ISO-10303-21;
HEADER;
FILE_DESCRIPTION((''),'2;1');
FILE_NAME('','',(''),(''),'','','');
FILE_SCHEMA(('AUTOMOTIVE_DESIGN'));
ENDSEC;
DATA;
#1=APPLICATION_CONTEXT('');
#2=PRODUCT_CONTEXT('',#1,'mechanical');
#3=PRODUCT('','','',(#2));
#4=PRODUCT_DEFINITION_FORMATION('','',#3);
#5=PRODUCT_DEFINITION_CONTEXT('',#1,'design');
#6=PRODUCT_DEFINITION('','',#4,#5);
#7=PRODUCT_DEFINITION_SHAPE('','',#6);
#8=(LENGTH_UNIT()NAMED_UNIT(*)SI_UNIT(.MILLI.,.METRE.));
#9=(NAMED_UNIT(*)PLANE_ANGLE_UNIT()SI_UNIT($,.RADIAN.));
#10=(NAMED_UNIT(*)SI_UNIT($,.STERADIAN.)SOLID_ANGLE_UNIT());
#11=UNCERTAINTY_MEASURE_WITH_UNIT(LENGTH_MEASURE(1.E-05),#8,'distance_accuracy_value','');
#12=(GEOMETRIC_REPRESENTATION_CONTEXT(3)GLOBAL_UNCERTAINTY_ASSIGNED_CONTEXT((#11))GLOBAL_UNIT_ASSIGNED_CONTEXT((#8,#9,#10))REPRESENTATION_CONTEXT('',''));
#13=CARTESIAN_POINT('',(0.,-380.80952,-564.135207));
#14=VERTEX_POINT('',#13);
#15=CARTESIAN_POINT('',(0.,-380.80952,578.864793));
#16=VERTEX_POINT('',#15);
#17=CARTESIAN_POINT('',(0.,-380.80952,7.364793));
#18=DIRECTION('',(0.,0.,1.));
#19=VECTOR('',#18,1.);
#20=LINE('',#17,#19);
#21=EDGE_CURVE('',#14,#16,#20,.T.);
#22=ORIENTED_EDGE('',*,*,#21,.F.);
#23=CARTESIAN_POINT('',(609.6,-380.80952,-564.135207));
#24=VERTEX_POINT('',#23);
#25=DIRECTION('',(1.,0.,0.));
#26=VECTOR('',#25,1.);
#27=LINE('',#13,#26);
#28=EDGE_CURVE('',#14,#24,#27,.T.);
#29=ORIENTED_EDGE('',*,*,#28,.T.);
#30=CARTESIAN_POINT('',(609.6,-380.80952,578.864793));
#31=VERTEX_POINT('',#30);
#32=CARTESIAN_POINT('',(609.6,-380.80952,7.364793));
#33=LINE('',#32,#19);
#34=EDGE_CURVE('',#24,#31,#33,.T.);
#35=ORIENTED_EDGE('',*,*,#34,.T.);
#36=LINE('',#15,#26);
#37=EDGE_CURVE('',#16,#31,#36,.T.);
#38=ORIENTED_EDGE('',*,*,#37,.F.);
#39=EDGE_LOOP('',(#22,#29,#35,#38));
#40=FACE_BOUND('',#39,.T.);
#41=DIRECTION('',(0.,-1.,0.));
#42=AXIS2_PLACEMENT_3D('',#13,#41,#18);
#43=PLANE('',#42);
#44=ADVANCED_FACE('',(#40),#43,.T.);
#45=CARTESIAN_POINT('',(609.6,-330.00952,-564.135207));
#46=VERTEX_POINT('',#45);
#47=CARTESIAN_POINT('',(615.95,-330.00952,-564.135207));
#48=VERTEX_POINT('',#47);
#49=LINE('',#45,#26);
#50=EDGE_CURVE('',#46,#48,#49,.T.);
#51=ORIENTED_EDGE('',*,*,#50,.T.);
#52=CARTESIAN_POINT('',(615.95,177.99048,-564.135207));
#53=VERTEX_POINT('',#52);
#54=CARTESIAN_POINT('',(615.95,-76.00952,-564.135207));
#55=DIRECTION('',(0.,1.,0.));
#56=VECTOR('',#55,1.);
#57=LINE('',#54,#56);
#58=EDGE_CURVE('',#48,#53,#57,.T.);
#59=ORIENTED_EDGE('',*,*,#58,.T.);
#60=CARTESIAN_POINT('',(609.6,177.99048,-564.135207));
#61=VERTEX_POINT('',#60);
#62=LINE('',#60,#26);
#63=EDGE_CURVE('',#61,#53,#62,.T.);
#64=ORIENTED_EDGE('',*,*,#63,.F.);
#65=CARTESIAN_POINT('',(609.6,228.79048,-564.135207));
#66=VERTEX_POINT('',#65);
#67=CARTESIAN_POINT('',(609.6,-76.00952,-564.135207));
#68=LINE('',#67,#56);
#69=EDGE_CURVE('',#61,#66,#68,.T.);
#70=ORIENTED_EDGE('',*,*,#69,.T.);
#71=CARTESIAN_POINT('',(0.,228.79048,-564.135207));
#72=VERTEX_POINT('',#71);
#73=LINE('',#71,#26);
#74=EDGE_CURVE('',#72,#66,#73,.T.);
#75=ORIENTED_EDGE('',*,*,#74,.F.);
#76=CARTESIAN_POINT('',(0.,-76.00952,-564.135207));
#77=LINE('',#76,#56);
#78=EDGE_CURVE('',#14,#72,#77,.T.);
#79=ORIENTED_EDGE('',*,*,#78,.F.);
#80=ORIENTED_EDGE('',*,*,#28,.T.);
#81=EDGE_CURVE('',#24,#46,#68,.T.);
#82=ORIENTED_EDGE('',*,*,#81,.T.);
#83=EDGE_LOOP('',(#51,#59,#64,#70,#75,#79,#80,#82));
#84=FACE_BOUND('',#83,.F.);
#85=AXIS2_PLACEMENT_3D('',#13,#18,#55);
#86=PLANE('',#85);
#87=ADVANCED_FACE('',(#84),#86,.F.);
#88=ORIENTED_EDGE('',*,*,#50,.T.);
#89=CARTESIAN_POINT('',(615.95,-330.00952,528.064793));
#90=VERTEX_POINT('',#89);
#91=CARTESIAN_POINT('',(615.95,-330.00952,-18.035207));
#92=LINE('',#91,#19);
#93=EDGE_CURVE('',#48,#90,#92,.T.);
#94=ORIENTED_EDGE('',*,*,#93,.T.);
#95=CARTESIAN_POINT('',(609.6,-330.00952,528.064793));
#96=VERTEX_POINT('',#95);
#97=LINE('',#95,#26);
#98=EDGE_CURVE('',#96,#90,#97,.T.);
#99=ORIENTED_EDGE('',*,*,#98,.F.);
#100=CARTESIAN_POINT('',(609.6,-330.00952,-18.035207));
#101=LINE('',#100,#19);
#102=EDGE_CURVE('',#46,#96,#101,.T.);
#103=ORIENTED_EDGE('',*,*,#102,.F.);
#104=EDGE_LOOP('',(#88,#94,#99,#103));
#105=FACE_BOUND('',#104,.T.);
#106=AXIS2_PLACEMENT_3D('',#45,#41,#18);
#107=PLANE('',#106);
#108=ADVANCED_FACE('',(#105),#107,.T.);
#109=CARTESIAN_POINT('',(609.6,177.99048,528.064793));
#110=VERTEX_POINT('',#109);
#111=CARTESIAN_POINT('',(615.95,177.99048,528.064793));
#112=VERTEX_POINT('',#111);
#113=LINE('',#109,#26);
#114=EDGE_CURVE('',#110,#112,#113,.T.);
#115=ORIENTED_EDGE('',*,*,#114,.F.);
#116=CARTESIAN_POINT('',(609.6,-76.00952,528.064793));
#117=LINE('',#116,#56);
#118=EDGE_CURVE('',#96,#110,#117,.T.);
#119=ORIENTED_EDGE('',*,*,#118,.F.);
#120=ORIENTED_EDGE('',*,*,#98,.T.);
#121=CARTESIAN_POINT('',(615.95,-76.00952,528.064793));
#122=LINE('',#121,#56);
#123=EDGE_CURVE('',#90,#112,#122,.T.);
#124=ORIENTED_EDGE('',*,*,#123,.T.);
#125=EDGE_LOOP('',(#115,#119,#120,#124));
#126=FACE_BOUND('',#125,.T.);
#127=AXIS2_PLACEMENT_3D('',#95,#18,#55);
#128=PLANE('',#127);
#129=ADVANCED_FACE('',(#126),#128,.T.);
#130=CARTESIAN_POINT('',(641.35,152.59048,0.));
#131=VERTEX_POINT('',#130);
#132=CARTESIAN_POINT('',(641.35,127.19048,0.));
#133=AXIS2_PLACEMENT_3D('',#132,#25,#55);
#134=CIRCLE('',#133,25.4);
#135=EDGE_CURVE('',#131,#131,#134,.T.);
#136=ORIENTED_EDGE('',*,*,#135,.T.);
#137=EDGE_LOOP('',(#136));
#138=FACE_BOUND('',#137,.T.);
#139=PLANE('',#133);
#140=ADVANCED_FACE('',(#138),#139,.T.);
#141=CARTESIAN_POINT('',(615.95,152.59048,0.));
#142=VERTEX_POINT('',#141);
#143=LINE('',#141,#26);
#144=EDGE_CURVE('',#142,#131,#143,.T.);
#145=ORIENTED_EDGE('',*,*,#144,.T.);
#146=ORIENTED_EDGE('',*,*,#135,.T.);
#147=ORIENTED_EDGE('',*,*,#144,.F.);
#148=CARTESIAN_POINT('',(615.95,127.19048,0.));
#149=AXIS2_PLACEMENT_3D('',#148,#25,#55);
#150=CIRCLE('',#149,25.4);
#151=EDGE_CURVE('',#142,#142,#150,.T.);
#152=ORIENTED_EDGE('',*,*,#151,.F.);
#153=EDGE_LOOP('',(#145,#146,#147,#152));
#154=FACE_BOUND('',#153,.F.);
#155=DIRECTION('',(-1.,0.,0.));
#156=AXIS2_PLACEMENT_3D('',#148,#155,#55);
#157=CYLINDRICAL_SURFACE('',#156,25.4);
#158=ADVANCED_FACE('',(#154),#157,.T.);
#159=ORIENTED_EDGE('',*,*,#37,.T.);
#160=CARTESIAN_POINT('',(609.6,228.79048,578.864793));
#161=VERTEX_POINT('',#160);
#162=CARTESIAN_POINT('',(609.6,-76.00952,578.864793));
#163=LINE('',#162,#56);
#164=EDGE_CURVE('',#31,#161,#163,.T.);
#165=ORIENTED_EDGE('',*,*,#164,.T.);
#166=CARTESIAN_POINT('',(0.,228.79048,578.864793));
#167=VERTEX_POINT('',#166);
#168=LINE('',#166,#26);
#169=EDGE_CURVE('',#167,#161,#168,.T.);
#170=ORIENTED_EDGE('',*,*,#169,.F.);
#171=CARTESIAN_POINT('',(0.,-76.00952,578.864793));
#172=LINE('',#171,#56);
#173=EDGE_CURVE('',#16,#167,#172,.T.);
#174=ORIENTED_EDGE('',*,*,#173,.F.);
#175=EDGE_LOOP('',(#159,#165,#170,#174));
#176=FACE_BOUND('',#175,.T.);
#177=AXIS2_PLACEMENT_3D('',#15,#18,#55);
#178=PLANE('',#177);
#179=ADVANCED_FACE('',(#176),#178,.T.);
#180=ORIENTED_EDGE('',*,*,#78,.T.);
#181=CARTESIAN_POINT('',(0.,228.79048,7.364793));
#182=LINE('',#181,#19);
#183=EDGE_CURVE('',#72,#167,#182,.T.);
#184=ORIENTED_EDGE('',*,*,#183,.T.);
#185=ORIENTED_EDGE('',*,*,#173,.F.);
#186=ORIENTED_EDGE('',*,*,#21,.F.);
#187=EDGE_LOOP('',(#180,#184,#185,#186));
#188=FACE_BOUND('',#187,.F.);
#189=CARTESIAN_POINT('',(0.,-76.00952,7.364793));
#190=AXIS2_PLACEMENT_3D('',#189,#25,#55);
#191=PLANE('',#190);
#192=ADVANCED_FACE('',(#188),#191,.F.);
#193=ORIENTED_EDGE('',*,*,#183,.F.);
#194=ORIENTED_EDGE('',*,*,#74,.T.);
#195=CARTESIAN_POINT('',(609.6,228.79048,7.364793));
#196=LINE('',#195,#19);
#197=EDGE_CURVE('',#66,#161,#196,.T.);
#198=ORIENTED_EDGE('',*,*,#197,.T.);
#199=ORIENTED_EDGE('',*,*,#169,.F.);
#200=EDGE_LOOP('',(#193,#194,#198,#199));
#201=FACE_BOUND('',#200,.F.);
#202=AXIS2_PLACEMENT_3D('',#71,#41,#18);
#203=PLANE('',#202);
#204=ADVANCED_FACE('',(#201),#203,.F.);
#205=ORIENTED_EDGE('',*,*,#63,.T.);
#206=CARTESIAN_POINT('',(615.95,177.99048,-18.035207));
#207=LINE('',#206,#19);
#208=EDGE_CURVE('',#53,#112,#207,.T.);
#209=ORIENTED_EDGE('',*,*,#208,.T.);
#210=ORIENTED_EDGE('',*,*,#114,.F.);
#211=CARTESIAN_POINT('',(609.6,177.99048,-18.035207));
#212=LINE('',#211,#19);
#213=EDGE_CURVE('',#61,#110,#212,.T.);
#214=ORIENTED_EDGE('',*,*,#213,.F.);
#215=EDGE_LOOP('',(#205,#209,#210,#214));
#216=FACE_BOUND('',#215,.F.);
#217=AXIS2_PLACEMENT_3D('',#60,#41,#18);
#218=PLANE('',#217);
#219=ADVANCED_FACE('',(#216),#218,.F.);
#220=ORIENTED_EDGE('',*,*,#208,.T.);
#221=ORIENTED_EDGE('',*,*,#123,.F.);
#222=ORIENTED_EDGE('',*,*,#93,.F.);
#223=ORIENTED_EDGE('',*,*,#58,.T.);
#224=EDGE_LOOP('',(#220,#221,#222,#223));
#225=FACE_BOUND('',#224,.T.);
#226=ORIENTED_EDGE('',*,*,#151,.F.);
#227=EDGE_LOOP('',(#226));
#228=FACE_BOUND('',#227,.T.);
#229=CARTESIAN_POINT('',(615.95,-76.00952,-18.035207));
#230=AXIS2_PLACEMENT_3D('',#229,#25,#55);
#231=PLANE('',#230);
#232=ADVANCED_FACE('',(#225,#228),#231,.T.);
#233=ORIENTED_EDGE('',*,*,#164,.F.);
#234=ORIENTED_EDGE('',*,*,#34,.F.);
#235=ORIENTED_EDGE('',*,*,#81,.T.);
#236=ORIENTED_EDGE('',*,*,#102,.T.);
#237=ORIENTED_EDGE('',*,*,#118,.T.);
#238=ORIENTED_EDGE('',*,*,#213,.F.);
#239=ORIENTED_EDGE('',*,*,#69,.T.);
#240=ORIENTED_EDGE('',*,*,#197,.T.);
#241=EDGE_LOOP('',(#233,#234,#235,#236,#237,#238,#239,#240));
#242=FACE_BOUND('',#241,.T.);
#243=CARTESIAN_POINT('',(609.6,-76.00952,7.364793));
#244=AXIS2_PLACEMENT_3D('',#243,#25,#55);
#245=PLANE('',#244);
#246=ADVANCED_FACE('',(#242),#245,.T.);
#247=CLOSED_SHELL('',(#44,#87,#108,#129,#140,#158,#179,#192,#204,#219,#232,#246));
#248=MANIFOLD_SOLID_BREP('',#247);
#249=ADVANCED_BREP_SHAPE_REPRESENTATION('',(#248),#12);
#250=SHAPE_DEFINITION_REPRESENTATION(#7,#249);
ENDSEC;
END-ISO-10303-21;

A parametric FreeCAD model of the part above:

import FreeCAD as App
import Part
import Sketcher
Q = App.Units.Quantity


def add_polygon(sketch, points):
    """Adds a closed chain of lines whose ends are joined by coincident constraints."""
    first, n = sketch.GeometryCount, len(points)
    for a, b in zip(points, points[1:] + points[:1]):
        sketch.addGeometry(Part.LineSegment(App.Vector(*a, 0), App.Vector(*b, 0)), False)
    for i in range(n):
        sketch.addConstraint(Sketcher.Constraint("Coincident", first + i, 2, first + (i + 1) % n, 1))

doc = App.newDocument("Part")
body = doc.addObject("PartDesign::Body", "Body")

# Sketch on YZ plane
sketch1 = body.newObject("Sketcher::SketchObject", "Sketch")
sketch1.AttachmentSupport = (doc.getObject("YZ_Plane"), [""])
sketch1.MapMode = "FlatFace"
add_polygon(sketch1, [(-381, 579), (-381, -564), (229, -564), (229, 579)])  # lines 0-3
sketch1.addConstraint([
    Sketcher.Constraint("Vertical", 0),
    Sketcher.Constraint("Horizontal", 1),
    Sketcher.Constraint("Vertical", 2),
    Sketcher.Constraint("Horizontal", 3),
    Sketcher.Constraint("DistanceX", 1, 1, 1, 2, Q("24 in")),
    Sketcher.Constraint("DistanceY", 0, 2, 0, 1, Q("45 in")),
    Sketcher.Constraint("DistanceX", 0, 2, -1, 1, Q("380.80952 mm")),
    Sketcher.Constraint("DistanceY", 0, 2, -1, 1, Q("564.135207 mm")),
])
pad1 = body.newObject("PartDesign::Pad", "Pad")
pad1.Profile = sketch1
pad1.Length = Q("24 in")

# Sketch on YZ plane
sketch2 = body.newObject("Sketcher::SketchObject", "Sketch001")
sketch2.AttachmentSupport = (doc.getObject("YZ_Plane"), [""])
sketch2.MapMode = "FlatFace"
sketch2.AttachmentOffset = App.Placement(App.Vector(0, 0, 24 * 25.4), App.Rotation())
add_polygon(sketch2, [(-330, 528), (-330, -564), (178, -564), (178, 528)])  # lines 0-3
sketch2.addConstraint([
    Sketcher.Constraint("Vertical", 0),
    Sketcher.Constraint("Horizontal", 1),
    Sketcher.Constraint("Vertical", 2),
    Sketcher.Constraint("Horizontal", 3),
    Sketcher.Constraint("DistanceX", 1, 1, 1, 2, Q("20 in")),
    Sketcher.Constraint("DistanceY", 0, 2, 0, 1, Q("43 in")),
    Sketcher.Constraint("DistanceX", 0, 2, -1, 1, Q("330.00952 mm")),
    Sketcher.Constraint("DistanceY", 0, 2, -1, 1, Q("564.135207 mm")),
])
pad2 = body.newObject("PartDesign::Pad", "Pad001")
pad2.Profile = sketch2
pad2.Length = Q("0.25 in")

# Sketch on YZ plane
sketch3 = body.newObject("Sketcher::SketchObject", "Sketch002")
sketch3.AttachmentSupport = (doc.getObject("YZ_Plane"), [""])
sketch3.MapMode = "FlatFace"
sketch3.AttachmentOffset = App.Placement(App.Vector(0, 0, 24.25 * 25.4), App.Rotation())
sketch3.addGeometry(Part.Circle(App.Vector(127, 0, 0), App.Vector(0, 0, 1), 25), False)
sketch3.addConstraint([
    Sketcher.Constraint("PointOnObject", 0, 3, -1),
    Sketcher.Constraint("Diameter", 0, Q("2 in")),
    Sketcher.Constraint("DistanceX", -1, 1, 0, 3, Q("127.19048 mm")),
])
pad3 = body.newObject("PartDesign::Pad", "Pad002")
pad3.Profile = sketch3
pad3.Length = Q("1 in")

doc.recompute()
